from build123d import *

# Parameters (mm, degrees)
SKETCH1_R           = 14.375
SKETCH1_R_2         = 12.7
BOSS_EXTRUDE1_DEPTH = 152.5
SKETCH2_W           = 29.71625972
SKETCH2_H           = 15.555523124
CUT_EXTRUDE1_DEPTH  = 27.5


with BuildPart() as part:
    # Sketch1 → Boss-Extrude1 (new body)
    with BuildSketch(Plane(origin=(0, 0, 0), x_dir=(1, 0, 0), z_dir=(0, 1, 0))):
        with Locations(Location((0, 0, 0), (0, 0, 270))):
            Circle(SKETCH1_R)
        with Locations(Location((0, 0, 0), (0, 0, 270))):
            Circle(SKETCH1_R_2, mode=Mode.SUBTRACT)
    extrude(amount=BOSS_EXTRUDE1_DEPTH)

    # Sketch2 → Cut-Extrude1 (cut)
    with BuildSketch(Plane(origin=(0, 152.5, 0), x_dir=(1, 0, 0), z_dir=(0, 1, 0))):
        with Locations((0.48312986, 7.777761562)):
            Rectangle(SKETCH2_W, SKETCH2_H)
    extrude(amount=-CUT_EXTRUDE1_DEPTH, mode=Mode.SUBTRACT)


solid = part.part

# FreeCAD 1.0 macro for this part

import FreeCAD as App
import Part
import Sketcher

V = App.Vector
Q = App.Units.Quantity


def add_polygon(sketch, points):
    """Adds a closed chain of lines whose ends are joined by coincident constraints."""
    first, n = sketch.GeometryCount, len(points)
    for a, b in zip(points, points[1:] + points[:1]):
        sketch.addGeometry(Part.LineSegment(App.Vector(*a, 0), App.Vector(*b, 0)), False)
    for i in range(n):
        sketch.addConstraint(Sketcher.Constraint("Coincident", first + i, 2, first + (i + 1) % n, 1))

doc = App.newDocument("Part")
params = doc.addObject("Spreadsheet::Sheet", "Params")
for row, (alias, value) in enumerate([
    ("sketch1_diameter", "25.4 mm"),
    ("sketch1_diameter2", "28.75 mm"),
    ("pad1_length", "152.5 mm"),
    ("pocket1_length", "27.5 mm"),
], start=1):
    params.set(f"A{row}", alias)
    params.set(f"B{row}", "=" + value)
    params.setAlias(f"B{row}", alias)

body = doc.addObject("PartDesign::Body", "Body")

sketch1 = body.newObject("Sketcher::SketchObject", "Sketch")
sketch1.AttachmentSupport = (doc.getObject("XZ_Plane"), [""])
sketch1.MapMode = "FlatFace"
sketch1.addGeometry(Part.Circle(V(0, 0, 0), V(0, 0, 1), 14), False)
sketch1.addGeometry(Part.Circle(V(0, 0, 0), V(0, 0, 1), 13), False)
sketch1.addConstraint(Sketcher.Constraint("Coincident", 0, 3, -1, 1))
sketch1.addConstraint(Sketcher.Constraint("Coincident", 1, 3, -1, 1))
sketch1.addConstraint(Sketcher.Constraint("Diameter", 1, Q("25.4 mm")))
sketch1.addConstraint(Sketcher.Constraint("Diameter", 0, Q("28.75 mm")))
sketch1.setExpression("Constraints[2]", "Params.sketch1_diameter")
sketch1.setExpression("Constraints[3]", "Params.sketch1_diameter2")
pad1 = body.newObject("PartDesign::Pad", "Pad")
pad1.Profile = sketch1
pad1.setExpression("Length", "Params.pad1_length")
pad1.Reversed = True

sketch2 = body.newObject("Sketcher::SketchObject", "Sketch001")
sketch2.AttachmentSupport = (doc.getObject("XZ_Plane"), [""])
sketch2.MapMode = "FlatFace"
sketch2.AttachmentOffset = App.Placement(V(0, 0, -152.5), App.Rotation())
add_polygon(sketch2, [(-14, -16), (-14, 0), (15, 0), (15, -16)])
sketch2.addConstraint(Sketcher.Constraint("Vertical", 0))
sketch2.addConstraint(Sketcher.Constraint("Horizontal", 1))
sketch2.addConstraint(Sketcher.Constraint("Vertical", 2))
sketch2.addConstraint(Sketcher.Constraint("Horizontal", 3))
sketch2.addConstraint(Sketcher.Constraint("PointOnObject", 0, 2, -1))
sketch2.addConstraint(Sketcher.Constraint("DistanceX", 0, 2, -1, 1, Q("14.375 mm")))
sketch2.addConstraint(Sketcher.Constraint("DistanceX", 1, 1, 1, 2, Q("29.71626 mm")))
sketch2.addConstraint(Sketcher.Constraint("DistanceY", 0, 1, 0, 2, Q("15.555523 mm")))
pocket1 = body.newObject("PartDesign::Pocket", "Pocket")
pocket1.Profile = sketch2
pocket1.setExpression("Length", "Params.pocket1_length")
pocket1.Reversed = True

doc.recompute()
